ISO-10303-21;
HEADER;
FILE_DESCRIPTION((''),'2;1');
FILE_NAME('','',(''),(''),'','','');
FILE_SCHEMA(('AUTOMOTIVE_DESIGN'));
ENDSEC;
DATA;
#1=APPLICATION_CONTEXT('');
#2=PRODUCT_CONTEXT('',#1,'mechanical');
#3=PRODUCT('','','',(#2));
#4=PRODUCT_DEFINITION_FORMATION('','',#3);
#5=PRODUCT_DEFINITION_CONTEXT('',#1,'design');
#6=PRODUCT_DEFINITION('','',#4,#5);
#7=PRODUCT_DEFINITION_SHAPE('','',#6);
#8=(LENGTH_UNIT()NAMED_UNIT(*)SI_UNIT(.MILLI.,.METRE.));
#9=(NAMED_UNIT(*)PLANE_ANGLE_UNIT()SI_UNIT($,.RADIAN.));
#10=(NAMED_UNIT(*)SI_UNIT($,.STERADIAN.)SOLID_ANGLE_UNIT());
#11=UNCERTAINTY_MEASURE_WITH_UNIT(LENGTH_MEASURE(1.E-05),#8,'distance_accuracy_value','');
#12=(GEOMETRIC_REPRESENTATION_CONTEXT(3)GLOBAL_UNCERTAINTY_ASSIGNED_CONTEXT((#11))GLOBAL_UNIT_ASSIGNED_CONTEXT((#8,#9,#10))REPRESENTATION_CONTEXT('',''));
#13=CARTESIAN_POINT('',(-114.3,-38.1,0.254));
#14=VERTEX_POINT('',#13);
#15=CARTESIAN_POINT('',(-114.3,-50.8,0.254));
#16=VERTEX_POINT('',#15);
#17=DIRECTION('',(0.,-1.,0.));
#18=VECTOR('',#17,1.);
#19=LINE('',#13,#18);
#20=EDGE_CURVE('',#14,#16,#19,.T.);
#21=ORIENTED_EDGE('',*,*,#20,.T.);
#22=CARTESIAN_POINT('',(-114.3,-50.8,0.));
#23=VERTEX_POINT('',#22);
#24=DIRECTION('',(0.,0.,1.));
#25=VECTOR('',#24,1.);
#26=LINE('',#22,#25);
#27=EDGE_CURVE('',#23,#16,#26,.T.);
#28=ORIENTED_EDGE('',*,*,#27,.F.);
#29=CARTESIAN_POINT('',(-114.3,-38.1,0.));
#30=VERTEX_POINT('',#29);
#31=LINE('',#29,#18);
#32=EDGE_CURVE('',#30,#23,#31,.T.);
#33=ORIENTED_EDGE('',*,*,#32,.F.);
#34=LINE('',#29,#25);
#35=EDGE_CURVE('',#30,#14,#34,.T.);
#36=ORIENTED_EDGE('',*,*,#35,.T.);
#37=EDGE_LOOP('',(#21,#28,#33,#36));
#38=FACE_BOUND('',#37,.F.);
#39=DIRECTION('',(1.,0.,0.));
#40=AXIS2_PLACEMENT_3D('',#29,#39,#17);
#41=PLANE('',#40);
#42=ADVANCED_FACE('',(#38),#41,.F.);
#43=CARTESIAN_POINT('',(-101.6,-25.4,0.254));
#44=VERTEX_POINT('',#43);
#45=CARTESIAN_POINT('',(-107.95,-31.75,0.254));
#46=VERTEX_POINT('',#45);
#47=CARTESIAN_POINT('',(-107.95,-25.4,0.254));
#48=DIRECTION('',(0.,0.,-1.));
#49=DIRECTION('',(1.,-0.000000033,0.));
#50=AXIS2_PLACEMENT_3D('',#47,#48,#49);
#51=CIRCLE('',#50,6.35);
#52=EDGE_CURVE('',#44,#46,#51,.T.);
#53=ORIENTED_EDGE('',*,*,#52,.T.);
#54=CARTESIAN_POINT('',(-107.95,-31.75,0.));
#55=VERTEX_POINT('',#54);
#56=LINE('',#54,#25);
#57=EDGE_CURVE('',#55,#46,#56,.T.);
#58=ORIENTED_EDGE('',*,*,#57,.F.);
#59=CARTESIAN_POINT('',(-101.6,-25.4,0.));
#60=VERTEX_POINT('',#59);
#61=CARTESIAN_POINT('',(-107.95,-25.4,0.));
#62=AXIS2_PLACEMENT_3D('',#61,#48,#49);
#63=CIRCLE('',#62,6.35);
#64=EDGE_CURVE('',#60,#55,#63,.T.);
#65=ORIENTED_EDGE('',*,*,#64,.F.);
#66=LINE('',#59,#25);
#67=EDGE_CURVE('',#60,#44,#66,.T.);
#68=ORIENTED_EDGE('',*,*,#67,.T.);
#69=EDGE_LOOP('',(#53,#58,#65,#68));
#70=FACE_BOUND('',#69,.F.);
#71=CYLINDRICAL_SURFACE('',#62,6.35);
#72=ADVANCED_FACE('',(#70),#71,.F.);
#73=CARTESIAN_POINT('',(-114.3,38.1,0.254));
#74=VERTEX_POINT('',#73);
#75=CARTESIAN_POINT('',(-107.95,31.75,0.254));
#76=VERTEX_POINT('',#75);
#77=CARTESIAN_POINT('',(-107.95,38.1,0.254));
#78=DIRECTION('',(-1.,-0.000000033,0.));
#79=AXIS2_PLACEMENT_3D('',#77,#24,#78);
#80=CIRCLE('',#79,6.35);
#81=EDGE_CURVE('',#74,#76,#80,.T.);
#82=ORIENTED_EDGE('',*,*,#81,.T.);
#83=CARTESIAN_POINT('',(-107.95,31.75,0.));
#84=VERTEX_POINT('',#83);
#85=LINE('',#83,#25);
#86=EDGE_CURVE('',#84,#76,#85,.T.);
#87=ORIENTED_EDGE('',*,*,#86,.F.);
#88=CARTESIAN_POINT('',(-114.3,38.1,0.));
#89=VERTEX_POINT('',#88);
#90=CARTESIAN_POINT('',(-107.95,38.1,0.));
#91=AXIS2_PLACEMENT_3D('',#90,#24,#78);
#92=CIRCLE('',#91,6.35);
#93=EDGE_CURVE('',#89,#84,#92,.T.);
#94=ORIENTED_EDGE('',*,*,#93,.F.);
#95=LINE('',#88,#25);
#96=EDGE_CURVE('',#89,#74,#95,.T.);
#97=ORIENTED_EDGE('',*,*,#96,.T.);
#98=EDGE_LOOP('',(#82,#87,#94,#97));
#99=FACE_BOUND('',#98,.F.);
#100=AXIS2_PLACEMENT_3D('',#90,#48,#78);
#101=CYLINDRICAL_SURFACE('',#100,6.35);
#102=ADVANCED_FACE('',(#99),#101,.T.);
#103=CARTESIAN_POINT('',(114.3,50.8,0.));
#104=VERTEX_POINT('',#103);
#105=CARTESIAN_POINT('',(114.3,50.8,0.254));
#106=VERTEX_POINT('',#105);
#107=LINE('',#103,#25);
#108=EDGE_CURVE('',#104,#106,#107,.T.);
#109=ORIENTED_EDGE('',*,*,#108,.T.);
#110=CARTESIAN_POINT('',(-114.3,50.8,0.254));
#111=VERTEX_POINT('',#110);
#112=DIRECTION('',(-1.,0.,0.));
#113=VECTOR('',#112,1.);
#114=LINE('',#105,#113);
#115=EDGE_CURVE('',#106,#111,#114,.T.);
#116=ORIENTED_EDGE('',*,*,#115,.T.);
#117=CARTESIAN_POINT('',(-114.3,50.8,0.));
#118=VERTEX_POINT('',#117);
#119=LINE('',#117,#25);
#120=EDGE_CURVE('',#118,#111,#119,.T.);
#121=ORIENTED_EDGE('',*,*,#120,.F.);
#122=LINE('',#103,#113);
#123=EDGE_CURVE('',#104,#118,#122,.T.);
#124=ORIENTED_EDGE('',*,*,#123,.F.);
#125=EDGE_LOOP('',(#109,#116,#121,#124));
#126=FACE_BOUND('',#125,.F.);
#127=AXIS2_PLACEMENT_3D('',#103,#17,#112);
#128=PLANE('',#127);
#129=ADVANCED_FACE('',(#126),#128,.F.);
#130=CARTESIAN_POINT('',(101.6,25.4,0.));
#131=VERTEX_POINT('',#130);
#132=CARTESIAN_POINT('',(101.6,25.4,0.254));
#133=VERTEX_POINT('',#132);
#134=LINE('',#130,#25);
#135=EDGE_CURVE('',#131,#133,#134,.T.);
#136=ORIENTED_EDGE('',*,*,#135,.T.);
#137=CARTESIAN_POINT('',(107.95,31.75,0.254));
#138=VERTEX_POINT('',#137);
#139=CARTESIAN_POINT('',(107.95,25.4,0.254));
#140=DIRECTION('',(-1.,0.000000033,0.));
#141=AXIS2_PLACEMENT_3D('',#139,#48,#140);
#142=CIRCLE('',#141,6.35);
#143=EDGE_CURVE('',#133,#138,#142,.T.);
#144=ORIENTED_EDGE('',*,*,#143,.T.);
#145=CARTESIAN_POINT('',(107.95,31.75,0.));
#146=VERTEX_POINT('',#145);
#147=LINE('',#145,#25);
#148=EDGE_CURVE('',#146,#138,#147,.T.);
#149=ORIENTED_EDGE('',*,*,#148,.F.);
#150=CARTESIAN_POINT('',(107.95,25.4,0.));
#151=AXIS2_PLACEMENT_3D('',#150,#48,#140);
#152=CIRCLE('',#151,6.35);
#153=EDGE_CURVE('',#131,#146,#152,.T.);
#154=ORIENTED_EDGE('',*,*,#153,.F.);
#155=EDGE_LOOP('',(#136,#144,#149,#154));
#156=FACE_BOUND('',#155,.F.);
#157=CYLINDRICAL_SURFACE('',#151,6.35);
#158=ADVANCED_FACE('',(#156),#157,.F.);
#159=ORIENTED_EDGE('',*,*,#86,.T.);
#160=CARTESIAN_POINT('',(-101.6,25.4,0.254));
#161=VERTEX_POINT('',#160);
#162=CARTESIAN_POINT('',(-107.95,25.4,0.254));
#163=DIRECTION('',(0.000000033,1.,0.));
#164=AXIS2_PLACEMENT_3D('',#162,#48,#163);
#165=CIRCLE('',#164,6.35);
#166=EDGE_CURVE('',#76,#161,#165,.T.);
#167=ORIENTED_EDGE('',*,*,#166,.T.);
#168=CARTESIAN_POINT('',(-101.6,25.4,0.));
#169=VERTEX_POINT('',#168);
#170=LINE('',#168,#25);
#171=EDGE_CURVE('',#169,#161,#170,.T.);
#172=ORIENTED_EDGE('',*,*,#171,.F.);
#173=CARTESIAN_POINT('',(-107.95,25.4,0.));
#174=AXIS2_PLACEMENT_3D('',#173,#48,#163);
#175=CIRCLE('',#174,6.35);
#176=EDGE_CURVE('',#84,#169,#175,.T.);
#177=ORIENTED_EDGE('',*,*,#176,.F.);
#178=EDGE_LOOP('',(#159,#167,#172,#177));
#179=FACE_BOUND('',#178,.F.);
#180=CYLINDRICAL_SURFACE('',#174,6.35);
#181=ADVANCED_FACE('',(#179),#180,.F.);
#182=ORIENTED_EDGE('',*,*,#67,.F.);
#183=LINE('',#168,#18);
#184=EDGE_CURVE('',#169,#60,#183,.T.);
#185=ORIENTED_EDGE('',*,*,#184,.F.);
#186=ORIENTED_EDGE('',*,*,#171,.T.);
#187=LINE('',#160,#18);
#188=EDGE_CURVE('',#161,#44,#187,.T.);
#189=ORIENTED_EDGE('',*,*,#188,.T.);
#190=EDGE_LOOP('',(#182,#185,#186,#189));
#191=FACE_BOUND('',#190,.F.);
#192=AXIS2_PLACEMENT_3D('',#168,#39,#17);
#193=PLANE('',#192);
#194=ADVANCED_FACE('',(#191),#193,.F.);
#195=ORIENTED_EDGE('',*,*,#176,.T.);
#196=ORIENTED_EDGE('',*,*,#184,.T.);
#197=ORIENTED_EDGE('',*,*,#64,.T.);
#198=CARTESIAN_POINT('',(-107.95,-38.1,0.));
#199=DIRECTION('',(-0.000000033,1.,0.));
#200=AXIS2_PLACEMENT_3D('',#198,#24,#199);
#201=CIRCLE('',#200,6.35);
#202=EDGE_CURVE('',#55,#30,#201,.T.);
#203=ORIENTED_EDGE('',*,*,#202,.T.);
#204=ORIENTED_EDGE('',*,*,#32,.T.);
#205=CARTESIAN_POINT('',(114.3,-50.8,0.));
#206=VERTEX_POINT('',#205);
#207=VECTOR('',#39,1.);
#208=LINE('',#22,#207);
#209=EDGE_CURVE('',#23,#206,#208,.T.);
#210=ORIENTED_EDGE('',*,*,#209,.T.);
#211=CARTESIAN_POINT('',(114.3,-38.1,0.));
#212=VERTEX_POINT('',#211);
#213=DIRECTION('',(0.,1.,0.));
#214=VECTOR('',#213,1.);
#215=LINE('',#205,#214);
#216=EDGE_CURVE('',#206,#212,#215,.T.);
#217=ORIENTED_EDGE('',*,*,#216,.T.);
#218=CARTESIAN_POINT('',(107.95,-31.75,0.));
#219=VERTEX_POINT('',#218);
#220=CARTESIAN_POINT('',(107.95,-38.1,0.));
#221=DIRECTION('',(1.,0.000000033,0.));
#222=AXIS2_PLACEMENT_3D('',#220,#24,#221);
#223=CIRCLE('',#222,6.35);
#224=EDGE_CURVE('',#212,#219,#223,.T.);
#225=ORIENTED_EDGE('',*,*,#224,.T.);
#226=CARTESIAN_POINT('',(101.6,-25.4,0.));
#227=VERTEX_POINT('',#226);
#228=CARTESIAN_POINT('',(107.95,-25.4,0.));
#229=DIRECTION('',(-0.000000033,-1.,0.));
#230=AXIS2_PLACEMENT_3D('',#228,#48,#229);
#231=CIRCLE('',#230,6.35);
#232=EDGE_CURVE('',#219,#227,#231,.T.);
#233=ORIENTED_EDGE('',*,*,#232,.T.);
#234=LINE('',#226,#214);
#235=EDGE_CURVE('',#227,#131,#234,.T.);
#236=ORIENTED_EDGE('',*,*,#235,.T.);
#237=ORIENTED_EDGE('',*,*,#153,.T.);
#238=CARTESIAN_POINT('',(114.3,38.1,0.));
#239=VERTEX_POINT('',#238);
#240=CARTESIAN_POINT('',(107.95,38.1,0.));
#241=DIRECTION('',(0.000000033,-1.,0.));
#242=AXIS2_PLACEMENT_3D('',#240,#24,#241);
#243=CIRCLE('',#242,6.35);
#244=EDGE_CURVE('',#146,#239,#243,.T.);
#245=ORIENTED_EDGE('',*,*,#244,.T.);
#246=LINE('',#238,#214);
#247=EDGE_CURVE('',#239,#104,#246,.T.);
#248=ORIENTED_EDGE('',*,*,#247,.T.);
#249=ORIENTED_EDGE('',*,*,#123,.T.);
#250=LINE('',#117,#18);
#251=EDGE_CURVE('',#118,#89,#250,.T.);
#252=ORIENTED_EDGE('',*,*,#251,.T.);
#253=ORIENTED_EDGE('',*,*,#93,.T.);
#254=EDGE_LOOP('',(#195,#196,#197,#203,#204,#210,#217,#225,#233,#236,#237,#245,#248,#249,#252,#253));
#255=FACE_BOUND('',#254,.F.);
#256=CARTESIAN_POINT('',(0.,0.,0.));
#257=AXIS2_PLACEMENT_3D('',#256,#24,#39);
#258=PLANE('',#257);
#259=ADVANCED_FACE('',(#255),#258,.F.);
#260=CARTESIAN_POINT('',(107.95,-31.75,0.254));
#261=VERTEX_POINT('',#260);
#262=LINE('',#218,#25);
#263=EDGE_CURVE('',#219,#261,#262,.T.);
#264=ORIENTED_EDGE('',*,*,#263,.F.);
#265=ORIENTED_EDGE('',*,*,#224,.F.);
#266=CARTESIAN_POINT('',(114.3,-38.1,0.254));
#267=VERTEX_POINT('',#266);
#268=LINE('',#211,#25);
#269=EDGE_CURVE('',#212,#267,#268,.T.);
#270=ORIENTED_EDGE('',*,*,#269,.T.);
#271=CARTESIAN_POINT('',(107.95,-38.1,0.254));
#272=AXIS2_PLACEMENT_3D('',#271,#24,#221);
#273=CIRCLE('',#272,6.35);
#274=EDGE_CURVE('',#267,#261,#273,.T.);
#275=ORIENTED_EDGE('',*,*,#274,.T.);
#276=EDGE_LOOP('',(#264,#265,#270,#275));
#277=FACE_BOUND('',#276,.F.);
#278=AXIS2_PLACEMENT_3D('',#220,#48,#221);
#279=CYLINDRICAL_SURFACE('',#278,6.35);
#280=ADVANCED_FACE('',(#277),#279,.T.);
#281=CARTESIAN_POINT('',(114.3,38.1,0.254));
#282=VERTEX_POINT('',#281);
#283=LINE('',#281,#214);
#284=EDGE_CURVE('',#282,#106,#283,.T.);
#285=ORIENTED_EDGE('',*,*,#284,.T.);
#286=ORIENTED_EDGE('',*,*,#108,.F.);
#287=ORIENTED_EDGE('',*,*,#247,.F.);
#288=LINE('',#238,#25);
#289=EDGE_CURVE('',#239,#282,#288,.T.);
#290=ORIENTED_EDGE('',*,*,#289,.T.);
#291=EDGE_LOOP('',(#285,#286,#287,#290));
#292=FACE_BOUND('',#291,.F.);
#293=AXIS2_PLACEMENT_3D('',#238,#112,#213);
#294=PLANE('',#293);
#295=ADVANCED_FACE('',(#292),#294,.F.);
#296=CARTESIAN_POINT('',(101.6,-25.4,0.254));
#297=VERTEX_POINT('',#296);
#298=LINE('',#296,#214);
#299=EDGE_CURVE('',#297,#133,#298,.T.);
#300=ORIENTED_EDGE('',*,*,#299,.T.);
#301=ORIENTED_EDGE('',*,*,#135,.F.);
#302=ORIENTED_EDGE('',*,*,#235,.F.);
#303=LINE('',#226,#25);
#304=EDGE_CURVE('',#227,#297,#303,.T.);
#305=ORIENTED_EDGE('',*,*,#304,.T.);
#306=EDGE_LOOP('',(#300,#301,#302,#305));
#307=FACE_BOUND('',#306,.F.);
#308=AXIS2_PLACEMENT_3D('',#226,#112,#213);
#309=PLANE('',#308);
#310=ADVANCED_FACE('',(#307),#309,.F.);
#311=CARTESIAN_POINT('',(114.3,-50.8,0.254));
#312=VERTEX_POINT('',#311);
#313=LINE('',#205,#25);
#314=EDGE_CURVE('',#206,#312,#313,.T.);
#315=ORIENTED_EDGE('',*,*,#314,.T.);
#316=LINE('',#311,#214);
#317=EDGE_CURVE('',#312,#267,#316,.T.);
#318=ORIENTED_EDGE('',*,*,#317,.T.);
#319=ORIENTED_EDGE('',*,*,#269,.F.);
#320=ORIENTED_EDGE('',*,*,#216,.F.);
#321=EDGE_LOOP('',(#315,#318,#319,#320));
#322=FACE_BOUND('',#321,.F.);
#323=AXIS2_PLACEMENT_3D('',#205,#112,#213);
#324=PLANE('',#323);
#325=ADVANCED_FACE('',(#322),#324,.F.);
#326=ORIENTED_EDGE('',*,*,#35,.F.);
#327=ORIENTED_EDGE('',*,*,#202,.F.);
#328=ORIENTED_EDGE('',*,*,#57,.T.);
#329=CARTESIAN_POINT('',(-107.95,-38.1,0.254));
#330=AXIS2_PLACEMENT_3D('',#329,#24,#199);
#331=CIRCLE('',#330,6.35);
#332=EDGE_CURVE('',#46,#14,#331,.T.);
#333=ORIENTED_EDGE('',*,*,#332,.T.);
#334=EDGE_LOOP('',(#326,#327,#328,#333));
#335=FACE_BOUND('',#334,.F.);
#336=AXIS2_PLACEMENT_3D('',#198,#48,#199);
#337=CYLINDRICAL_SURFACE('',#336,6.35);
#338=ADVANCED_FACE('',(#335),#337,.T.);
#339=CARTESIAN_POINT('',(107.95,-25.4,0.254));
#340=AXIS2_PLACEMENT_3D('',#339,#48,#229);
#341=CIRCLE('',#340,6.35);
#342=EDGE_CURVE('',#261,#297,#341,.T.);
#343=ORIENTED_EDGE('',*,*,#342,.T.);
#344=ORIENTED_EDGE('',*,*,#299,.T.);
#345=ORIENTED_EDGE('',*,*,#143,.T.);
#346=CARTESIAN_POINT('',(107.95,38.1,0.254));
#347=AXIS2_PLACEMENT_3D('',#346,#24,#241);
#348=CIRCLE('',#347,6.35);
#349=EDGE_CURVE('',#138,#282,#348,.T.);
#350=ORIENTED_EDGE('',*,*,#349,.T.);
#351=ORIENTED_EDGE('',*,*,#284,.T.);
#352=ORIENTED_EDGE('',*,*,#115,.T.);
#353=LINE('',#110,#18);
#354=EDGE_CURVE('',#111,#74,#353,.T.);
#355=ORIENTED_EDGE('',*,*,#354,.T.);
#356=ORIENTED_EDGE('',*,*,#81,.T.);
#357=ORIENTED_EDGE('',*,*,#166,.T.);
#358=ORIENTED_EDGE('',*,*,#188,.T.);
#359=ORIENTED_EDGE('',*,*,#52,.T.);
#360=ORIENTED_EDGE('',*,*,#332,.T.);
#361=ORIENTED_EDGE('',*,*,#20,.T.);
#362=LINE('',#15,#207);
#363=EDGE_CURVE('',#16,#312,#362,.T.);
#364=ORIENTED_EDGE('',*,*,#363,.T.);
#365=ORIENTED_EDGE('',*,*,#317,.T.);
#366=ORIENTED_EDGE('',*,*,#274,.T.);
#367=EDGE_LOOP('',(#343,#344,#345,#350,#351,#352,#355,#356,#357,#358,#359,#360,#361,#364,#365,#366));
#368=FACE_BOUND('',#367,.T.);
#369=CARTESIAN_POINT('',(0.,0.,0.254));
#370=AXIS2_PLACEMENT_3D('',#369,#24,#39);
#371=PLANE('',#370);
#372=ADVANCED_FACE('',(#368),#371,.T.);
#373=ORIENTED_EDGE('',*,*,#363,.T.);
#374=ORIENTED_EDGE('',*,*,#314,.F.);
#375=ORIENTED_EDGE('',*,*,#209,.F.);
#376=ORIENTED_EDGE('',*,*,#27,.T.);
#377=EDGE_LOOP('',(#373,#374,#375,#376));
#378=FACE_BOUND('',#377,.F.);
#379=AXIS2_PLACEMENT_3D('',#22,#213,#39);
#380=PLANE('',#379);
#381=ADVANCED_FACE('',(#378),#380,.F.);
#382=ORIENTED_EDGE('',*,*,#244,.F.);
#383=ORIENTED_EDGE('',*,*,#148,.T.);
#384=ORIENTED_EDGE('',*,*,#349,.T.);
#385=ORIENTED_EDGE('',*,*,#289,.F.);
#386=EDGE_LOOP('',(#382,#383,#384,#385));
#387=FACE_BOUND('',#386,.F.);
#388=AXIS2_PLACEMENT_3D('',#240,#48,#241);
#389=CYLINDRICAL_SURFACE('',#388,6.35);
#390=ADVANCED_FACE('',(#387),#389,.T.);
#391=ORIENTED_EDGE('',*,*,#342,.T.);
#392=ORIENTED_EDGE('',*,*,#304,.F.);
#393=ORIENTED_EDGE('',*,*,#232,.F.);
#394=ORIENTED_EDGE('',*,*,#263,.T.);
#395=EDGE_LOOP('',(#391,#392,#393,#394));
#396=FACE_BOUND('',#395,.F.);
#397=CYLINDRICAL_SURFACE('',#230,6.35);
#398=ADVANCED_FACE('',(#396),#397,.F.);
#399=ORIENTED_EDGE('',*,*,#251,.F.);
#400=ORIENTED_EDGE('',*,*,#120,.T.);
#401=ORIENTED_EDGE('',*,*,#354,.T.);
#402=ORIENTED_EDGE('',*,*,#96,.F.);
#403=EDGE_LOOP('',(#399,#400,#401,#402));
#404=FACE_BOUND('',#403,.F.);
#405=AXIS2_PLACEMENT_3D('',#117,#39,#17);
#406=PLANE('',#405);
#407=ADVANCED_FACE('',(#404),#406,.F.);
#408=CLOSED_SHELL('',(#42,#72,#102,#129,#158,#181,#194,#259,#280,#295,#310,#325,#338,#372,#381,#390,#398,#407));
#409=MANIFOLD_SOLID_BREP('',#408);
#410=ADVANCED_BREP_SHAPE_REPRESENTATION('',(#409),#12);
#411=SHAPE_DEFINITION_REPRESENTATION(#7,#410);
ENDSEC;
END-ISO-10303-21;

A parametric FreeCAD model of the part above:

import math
import FreeCAD as App
import Part
import Sketcher
from FreeCAD import Vector
Q = App.Units.Quantity

doc = App.newDocument("Part")
body = doc.addObject("PartDesign::Body", "Body")

sketch1 = body.newObject("Sketcher::SketchObject", "Sketch")
sketch1.AttachmentSupport = (doc.getObject("XY_Plane"), [""])
sketch1.MapMode = "FlatFace"
sketch1.addGeometry([
    Part.LineSegment(Vector(114.3, 50.8, 0), Vector(-114.3, 50.8, 0)),
    Part.LineSegment(Vector(-114.3, 50.8, 0), Vector(-114.3, 38.1, 0)),
    Part.ArcOfCircle(Part.Circle(Vector(-107.95, 38.1, 0), Vector(0, 0, 1), 6.35), math.radians(-179.999998), math.radians(-90.000002)),
    Part.ArcOfCircle(Part.Circle(Vector(-107.95, 25.4, 0), Vector(0, 0, 1), 6.35), math.radians(0.000002), math.radians(89.999998)),
    Part.LineSegment(Vector(-101.6, 25.4, 0), Vector(-101.6, -25.4, 0)),
    Part.ArcOfCircle(Part.Circle(Vector(-107.95, -25.4, 0), Vector(0, 0, 1), 6.35), math.radians(-89.999998), math.radians(-0.000002)),
    Part.ArcOfCircle(Part.Circle(Vector(-107.95, -38.1, 0), Vector(0, 0, 1), 6.35), math.radians(90.000002), math.radians(179.999998)),
    Part.LineSegment(Vector(-114.3, -38.1, 0), Vector(-114.3, -50.8, 0)),
    Part.LineSegment(Vector(-114.3, -50.8, 0), Vector(114.3, -50.8, 0)),
    Part.LineSegment(Vector(114.3, -50.8, 0), Vector(114.3, -38.1, 0)),
    Part.ArcOfCircle(Part.Circle(Vector(107.95, -38.1, 0), Vector(0, 0, 1), 6.35), math.radians(0.000002), math.radians(89.999998)),
    Part.ArcOfCircle(Part.Circle(Vector(107.95, -25.4, 0), Vector(0, 0, 1), 6.35), math.radians(-179.999998), math.radians(-90.000002)),
    Part.LineSegment(Vector(101.6, -25.4, 0), Vector(101.6, 25.4, 0)),
    Part.ArcOfCircle(Part.Circle(Vector(107.95, 25.4, 0), Vector(0, 0, 1), 6.35), math.radians(90.000002), math.radians(179.999998)),
    Part.ArcOfCircle(Part.Circle(Vector(107.95, 38.1, 0), Vector(0, 0, 1), 6.35), math.radians(-89.999998), math.radians(-0.000002)),
    Part.LineSegment(Vector(114.3, 38.1, 0), Vector(114.3, 50.8, 0)),
], False)
sketch1.addConstraint([
    Sketcher.Constraint("Coincident", 0, 2, 1, 1),
    Sketcher.Constraint("Tangent", 1, 2, 2, 1),
    Sketcher.Constraint("Tangent", 2, 2, 3, 2),
    Sketcher.Constraint("Tangent", 3, 1, 4, 1),
    Sketcher.Constraint("Tangent", 4, 2, 5, 2),
    Sketcher.Constraint("Tangent", 5, 1, 6, 1),
    Sketcher.Constraint("Tangent", 6, 2, 7, 1),
    Sketcher.Constraint("Coincident", 7, 2, 8, 1),
    Sketcher.Constraint("Coincident", 8, 2, 9, 1),
    Sketcher.Constraint("Tangent", 9, 2, 10, 1),
    Sketcher.Constraint("Tangent", 10, 2, 11, 2),
    Sketcher.Constraint("Tangent", 11, 1, 12, 1),
    Sketcher.Constraint("Tangent", 12, 2, 13, 2),
    Sketcher.Constraint("Tangent", 13, 1, 14, 1),
    Sketcher.Constraint("Tangent", 14, 2, 15, 1),
    Sketcher.Constraint("Coincident", 15, 2, 0, 1),
    Sketcher.Constraint("Horizontal", 0),
    Sketcher.Constraint("Vertical", 1),
    Sketcher.Constraint("Vertical", 4),
    Sketcher.Constraint("Vertical", 7),
    Sketcher.Constraint("Horizontal", 8),
    Sketcher.Constraint("Vertical", 9),
    Sketcher.Constraint("Vertical", 12),
    Sketcher.Constraint("Vertical", 15),
    Sketcher.Constraint("Equal", 2, 3),
    Sketcher.Constraint("Equal", 3, 5),
    Sketcher.Constraint("Equal", 5, 6),
    Sketcher.Constraint("Equal", 6, 10),
    Sketcher.Constraint("Equal", 10, 11),
    Sketcher.Constraint("Equal", 11, 13),
    Sketcher.Constraint("Equal", 13, 14),
    Sketcher.Constraint("Symmetric", 2, 3, 10, 3, -1, 1),
    Sketcher.Constraint("Symmetric", 5, 3, 13, 3, -1, 1),
    Sketcher.Constraint("Symmetric", 7, 2, 15, 2, -1, 1),
    Sketcher.Constraint("Symmetric", 6, 3, 10, 3, -2),
    Sketcher.Constraint("Vertical", 2, 3, 3, 3),
    Sketcher.Constraint("DistanceX", 0, 2, 0, 1, Q("9 in")),
    Sketcher.Constraint("DistanceY", 4, 2, 4, 1, Q("2 in")),
    Sketcher.Constraint("Radius", 2, Q("0.25 in")),
    Sketcher.Constraint("DistanceY", 1, 2, 1, 1, Q("0.5 in")),
])
pad1 = body.newObject("PartDesign::Pad", "Pad")
pad1.Profile = sketch1
pad1.Length = Q("0.01 in")

doc.recompute()
